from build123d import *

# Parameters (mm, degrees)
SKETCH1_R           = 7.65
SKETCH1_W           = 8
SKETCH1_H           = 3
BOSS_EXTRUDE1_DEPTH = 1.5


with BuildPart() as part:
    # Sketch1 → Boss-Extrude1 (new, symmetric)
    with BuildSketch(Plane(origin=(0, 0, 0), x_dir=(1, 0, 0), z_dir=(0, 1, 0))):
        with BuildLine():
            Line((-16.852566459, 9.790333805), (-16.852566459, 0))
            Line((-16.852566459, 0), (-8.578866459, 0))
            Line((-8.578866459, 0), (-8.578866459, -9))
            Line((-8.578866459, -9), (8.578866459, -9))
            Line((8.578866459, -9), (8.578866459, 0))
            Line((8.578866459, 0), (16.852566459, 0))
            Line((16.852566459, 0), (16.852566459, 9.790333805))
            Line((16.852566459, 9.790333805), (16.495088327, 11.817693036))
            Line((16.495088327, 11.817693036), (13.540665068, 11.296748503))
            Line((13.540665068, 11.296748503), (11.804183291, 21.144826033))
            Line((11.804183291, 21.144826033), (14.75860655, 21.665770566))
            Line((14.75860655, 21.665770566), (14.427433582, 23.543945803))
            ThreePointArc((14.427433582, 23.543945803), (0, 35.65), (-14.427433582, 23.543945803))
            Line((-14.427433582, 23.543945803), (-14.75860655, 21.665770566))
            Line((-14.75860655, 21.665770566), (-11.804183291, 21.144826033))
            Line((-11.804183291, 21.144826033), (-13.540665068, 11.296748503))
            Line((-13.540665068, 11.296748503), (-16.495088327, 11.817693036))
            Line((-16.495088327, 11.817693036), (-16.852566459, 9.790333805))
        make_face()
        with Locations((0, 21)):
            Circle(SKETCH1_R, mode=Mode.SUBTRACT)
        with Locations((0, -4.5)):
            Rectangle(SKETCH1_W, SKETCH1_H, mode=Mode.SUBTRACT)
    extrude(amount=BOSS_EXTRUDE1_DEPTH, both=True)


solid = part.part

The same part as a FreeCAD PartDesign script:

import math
import FreeCAD as App
import Part
import Sketcher
from FreeCAD import Vector
Q = App.Units.Quantity

doc = App.newDocument("Part")
params = doc.addObject("Spreadsheet::Sheet", "Params")
for row, (alias, value) in enumerate([
    ("sketch1_diameter", "15.3 mm"),
    ("sketch1_width", "8 mm"),
    ("sketch1_height", "9 mm"),
    ("sketch1_height2", "3 mm"),
    ("sketch1_radius", "14.65 mm"),
    ("pad1_length", "3 mm"),
], start=1):
    params.set(f"A{row}", alias)
    params.set(f"B{row}", "=" + value)
    params.setAlias(f"B{row}", alias)

body = doc.addObject("PartDesign::Body", "Body")

# Sketch on XZ plane
sketch1 = doc.addObject("Sketcher::SketchObject", "Sketch")
body.addObject(sketch1)
sketch1.AttachmentSupport = (doc.XZ_Plane, [""])
sketch1.MapMode = "FlatFace"
sketch1.addGeometry([
    Part.LineSegment(Vector(-16.9, -9.8, 0), Vector(-16.9, 0, 0)),  # 0
    Part.LineSegment(Vector(-16.9, 0, 0), Vector(-8.6, 0, 0)),  # 1
    Part.LineSegment(Vector(-8.6, 0, 0), Vector(-8.6, 9, 0)),  # 2
    Part.LineSegment(Vector(-8.6, 9, 0), Vector(8.6, 9, 0)),  # 3
    Part.LineSegment(Vector(8.6, 9, 0), Vector(8.6, 0, 0)),  # 4
    Part.LineSegment(Vector(8.6, 0, 0), Vector(16.9, 0, 0)),  # 5
    Part.LineSegment(Vector(16.9, 0, 0), Vector(16.9, -9.8, 0)),  # 6
    Part.LineSegment(Vector(16.9, -9.8, 0), Vector(16.5, -11.8, 0)),  # 7
    Part.LineSegment(Vector(16.5, -11.8, 0), Vector(13.5, -11.3, 0)),  # 8
    Part.LineSegment(Vector(13.5, -11.3, 0), Vector(11.8, -21.1, 0)),  # 9
    Part.LineSegment(Vector(11.8, -21.1, 0), Vector(14.8, -21.7, 0)),  # 10
    Part.LineSegment(Vector(14.8, -21.7, 0), Vector(14.4, -23.5, 0)),  # 11
    Part.ArcOfCircle(Part.Circle(Vector(0, -21, 0), Vector(0, 0, 1), 14.7), math.radians(-170), math.radians(-10)),  # 12
    Part.LineSegment(Vector(-14.4, -23.5, 0), Vector(-14.8, -21.7, 0)),  # 13
    Part.LineSegment(Vector(-14.8, -21.7, 0), Vector(-11.8, -21.1, 0)),  # 14
    Part.LineSegment(Vector(-11.8, -21.1, 0), Vector(-13.5, -11.3, 0)),  # 15
    Part.LineSegment(Vector(-13.5, -11.3, 0), Vector(-16.5, -11.8, 0)),  # 16
    Part.LineSegment(Vector(-16.5, -11.8, 0), Vector(-16.9, -9.8, 0)),  # 17
    Part.LineSegment(Vector(4, 6, 0), Vector(-4, 6, 0)),  # 18
    Part.LineSegment(Vector(-4, 6, 0), Vector(-4, 3, 0)),  # 19
    Part.LineSegment(Vector(-4, 3, 0), Vector(4, 3, 0)),  # 20
    Part.LineSegment(Vector(4, 3, 0), Vector(4, 6, 0)),  # 21
    Part.Circle(Vector(0, -21, 0), Vector(0, 0, 1), 7.7),  # 22
], False)
sketch1.addConstraint([
    Sketcher.Constraint("Coincident", 0, 2, 1, 1),
    Sketcher.Constraint("Coincident", 1, 2, 2, 1),
    Sketcher.Constraint("Coincident", 2, 2, 3, 1),
    Sketcher.Constraint("Coincident", 3, 2, 4, 1),
    Sketcher.Constraint("Coincident", 4, 2, 5, 1),
    Sketcher.Constraint("Coincident", 5, 2, 6, 1),
    Sketcher.Constraint("Coincident", 6, 2, 7, 1),
    Sketcher.Constraint("Coincident", 7, 2, 8, 1),
    Sketcher.Constraint("Coincident", 8, 2, 9, 1),
    Sketcher.Constraint("Coincident", 9, 2, 10, 1),
    Sketcher.Constraint("Coincident", 10, 2, 11, 1),
    Sketcher.Constraint("Tangent", 11, 2, 12, 2),
    Sketcher.Constraint("Tangent", 12, 1, 13, 1),
    Sketcher.Constraint("Coincident", 13, 2, 14, 1),
    Sketcher.Constraint("Coincident", 14, 2, 15, 1),
    Sketcher.Constraint("Coincident", 15, 2, 16, 1),
    Sketcher.Constraint("Coincident", 16, 2, 17, 1),
    Sketcher.Constraint("Coincident", 17, 2, 0, 1),
    Sketcher.Constraint("Coincident", 18, 2, 19, 1),
    Sketcher.Constraint("Coincident", 19, 2, 20, 1),
    Sketcher.Constraint("Coincident", 20, 2, 21, 1),
    Sketcher.Constraint("Coincident", 21, 2, 18, 1),
    Sketcher.Constraint("Vertical", 0),
    Sketcher.Constraint("Horizontal", 1),
    Sketcher.Constraint("Vertical", 2),
    Sketcher.Constraint("Horizontal", 3),
    Sketcher.Constraint("Vertical", 4),
    Sketcher.Constraint("Horizontal", 5),
    Sketcher.Constraint("Vertical", 6),
    Sketcher.Constraint("Horizontal", 18),
    Sketcher.Constraint("Vertical", 19),
    Sketcher.Constraint("Horizontal", 20),
    Sketcher.Constraint("Vertical", 21),
    Sketcher.Constraint("Coincident", 22, 3, 12, 3),
    Sketcher.Constraint("Symmetric", 1, 2, 4, 2, -1, 1),
    Sketcher.Constraint("Symmetric", 0, 2, 5, 2, -2),
    Sketcher.Constraint("Symmetric", 11, 2, 12, 1, -2),
    Sketcher.Constraint("Symmetric", 9, 2, 14, 2, -2),
    Sketcher.Constraint("Symmetric", 8, 2, 15, 2, -2),
    Sketcher.Constraint("Symmetric", 7, 2, 16, 2, -2),
    Sketcher.Constraint("Perpendicular", 7, 8),
    Sketcher.Constraint("Perpendicular", 8, 9),
    Sketcher.Constraint("Perpendicular", 9, 10),
    Sketcher.Constraint("Perpendicular", 10, 11),
    Sketcher.Constraint("Perpendicular", 13, 14),
    Sketcher.Constraint("Perpendicular", 16, 17),
    Sketcher.Constraint("Equal", 8, 10),
    Sketcher.Constraint("Diameter", 22, 15.3),
    Sketcher.Constraint("DistanceX", 18, 2, 18, 1, 8.0),
    Sketcher.Constraint("DistanceY", 2, 1, 2, 2, 9.0),
    Sketcher.Constraint("DistanceY", 19, 2, 19, 1, 3.0),
    Sketcher.Constraint("Angle", 7, Q("-100 deg")),
    Sketcher.Constraint("Radius", 12, 14.65),
    Sketcher.Constraint("Distance", 8, 3.0),
    Sketcher.Constraint("Distance", 9, 10.0),
    Sketcher.Constraint("DistanceY", 12, 3, -1, 1, 21.0),
    Sketcher.Constraint("DistanceX", 18, 2, -1, 1, 4.0),
    Sketcher.Constraint("DistanceY", -1, 1, 18, 2, 6.0),
    Sketcher.Constraint("DistanceX", 1, 1, 1, 2, 8.2737),
    Sketcher.Constraint("DistanceX", 8, 2, 6, 2, 3.311901),
    Sketcher.Constraint("Distance", 11, 1.907149),
])
sketch1.setExpression("Constraints[47]", "Params.sketch1_diameter")
sketch1.setExpression("Constraints[48]", "Params.sketch1_width")
sketch1.setExpression("Constraints[49]", "Params.sketch1_height")
sketch1.setExpression("Constraints[50]", "Params.sketch1_height2")
sketch1.setExpression("Constraints[52]", "Params.sketch1_radius")
pad1 = doc.addObject("PartDesign::Pad", "Pad")
body.addObject(pad1)
pad1.Profile = sketch1
pad1.setExpression("Length", "Params.pad1_length")
pad1.Midplane = True

doc.recompute()
